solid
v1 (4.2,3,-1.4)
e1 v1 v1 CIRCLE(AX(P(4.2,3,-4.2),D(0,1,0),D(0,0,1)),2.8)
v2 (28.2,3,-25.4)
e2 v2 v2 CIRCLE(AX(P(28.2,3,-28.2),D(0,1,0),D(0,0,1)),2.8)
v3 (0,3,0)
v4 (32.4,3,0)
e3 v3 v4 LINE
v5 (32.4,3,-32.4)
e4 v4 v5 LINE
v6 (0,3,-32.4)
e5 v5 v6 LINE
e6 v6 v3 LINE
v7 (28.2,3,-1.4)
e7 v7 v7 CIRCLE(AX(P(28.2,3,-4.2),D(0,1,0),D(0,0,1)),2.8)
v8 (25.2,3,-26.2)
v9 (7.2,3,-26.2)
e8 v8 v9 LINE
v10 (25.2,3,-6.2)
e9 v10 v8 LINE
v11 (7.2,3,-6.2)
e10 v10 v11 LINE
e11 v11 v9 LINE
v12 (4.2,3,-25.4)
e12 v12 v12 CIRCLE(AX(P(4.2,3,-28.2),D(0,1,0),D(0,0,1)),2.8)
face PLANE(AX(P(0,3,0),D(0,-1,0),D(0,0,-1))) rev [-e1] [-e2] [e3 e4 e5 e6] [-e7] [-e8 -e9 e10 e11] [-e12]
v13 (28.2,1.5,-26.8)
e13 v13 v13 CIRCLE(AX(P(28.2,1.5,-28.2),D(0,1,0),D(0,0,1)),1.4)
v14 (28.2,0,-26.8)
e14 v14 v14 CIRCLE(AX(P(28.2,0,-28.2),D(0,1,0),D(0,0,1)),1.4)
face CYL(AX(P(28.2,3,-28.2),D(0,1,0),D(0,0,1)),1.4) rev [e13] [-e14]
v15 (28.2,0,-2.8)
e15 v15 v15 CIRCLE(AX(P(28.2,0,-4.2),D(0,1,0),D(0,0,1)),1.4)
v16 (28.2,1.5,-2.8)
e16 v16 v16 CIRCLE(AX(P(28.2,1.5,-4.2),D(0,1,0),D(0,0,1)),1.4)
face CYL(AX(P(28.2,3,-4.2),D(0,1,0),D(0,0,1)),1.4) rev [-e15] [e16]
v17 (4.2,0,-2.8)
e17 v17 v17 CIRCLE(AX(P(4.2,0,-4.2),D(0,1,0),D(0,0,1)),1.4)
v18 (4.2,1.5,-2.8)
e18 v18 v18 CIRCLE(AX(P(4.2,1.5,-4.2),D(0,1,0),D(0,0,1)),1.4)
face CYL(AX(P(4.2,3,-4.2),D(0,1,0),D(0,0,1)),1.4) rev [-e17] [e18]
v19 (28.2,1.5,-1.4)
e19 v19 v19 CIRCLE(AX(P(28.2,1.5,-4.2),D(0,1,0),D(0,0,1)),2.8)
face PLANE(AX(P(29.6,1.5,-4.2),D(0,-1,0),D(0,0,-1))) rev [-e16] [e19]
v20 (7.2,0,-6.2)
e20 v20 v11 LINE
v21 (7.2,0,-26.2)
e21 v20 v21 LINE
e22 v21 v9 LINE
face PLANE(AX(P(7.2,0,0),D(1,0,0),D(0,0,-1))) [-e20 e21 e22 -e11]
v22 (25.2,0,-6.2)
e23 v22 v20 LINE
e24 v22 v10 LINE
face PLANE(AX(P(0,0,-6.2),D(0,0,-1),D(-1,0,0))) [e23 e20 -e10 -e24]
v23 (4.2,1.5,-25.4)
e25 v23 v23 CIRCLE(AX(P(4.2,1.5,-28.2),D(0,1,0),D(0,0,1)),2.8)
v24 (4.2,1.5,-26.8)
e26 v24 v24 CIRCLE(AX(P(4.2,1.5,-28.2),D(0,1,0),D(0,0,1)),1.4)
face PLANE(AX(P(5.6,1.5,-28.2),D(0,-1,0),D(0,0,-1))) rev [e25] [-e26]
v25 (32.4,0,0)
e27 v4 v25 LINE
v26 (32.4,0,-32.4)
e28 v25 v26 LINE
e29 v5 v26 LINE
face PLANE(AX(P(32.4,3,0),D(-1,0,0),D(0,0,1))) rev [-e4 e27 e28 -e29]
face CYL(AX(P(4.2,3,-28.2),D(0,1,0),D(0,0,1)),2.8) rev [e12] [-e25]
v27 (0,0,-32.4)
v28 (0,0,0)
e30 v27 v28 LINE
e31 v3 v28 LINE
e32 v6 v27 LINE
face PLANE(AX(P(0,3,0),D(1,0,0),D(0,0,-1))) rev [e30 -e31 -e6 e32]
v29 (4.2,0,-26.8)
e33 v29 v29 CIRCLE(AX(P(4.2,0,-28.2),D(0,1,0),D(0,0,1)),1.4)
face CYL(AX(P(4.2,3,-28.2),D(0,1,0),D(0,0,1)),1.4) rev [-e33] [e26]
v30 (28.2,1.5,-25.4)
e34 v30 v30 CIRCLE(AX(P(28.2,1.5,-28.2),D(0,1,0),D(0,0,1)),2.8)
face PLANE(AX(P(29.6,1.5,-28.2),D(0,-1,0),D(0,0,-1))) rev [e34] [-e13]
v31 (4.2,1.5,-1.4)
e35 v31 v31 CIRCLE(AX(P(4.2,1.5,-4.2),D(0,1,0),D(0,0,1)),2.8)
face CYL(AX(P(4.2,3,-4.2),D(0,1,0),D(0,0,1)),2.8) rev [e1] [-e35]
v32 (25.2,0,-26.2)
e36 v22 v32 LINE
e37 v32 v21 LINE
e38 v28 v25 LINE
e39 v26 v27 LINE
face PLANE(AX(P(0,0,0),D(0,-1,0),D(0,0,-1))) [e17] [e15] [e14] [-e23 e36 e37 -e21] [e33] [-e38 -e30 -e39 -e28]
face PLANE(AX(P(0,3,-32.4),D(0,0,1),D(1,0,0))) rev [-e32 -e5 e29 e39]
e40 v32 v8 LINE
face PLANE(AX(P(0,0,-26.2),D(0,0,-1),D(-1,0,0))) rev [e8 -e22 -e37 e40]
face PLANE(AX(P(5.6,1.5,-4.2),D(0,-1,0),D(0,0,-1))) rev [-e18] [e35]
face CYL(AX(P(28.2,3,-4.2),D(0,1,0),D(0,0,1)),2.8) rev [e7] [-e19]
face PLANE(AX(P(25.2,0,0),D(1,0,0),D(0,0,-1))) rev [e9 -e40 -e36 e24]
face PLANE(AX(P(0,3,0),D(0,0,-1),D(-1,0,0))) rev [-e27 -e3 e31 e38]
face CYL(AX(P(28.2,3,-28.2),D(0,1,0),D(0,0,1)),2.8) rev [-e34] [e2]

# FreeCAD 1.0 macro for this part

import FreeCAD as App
import Part
import Sketcher
Q = App.Units.Quantity

doc = App.newDocument("Part")
body = doc.addObject("PartDesign::Body", "Body")

sketch1 = body.newObject("Sketcher::SketchObject", "Sketch")
sketch1.AttachmentSupport = (doc.getObject("XZ_Plane"), [""])
sketch1.MapMode = "FlatFace"
sketch1.addGeometry([
    Part.LineSegment(App.Vector(0, -32, 0), App.Vector(0, 0, 0)),
    Part.LineSegment(App.Vector(0, 0, 0), App.Vector(32, 0, 0)),
    Part.LineSegment(App.Vector(32, 0, 0), App.Vector(32, -32, 0)),
    Part.LineSegment(App.Vector(32, -32, 0), App.Vector(0, -32, 0)),
], False)
sketch1.addConstraint([
    Sketcher.Constraint("Coincident", 0, 2, 1, 1),
    Sketcher.Constraint("Coincident", 1, 2, 2, 1),
    Sketcher.Constraint("Coincident", 2, 2, 3, 1),
    Sketcher.Constraint("Coincident", 3, 2, 0, 1),
    Sketcher.Constraint("Vertical", 0),
    Sketcher.Constraint("Horizontal", 1),
    Sketcher.Constraint("Vertical", 2),
    Sketcher.Constraint("Horizontal", 3),
    Sketcher.Constraint("Coincident", 0, 2, -1, 1),
    Sketcher.Constraint("Equal", 3, 0),
    Sketcher.Constraint("DistanceX", 1, 1, 1, 2, Q("32.4 mm")),
])
pad1 = body.newObject("PartDesign::Pad", "Pad")
pad1.Profile = sketch1
pad1.Length = 3
pad1.Reversed = True

sketch2 = body.newObject("Sketcher::SketchObject", "Sketch001")
sketch2.AttachmentSupport = (doc.getObject("XZ_Plane"), [""])
sketch2.MapMode = "FlatFace"
sketch2.AttachmentOffset = App.Placement(App.Vector(0, 0, -3), App.Rotation())
sketch2.addGeometry([
    Part.Circle(App.Vector(4.2, -28.2, 0), App.Vector(0, 0, 1), 1.4),
    Part.Circle(App.Vector(28.2, -28.2, 0), App.Vector(0, 0, 1), 1.4),
    Part.Circle(App.Vector(28.2, -4.2, 0), App.Vector(0, 0, 1), 1.4),
    Part.Circle(App.Vector(4.2, -4.2, 0), App.Vector(0, 0, 1), 1.4),
], False)
sketch2.addConstraint([
    Sketcher.Constraint("Equal", 0, 1),
    Sketcher.Constraint("Equal", 1, 2),
    Sketcher.Constraint("Equal", 2, 3),
    Sketcher.Constraint("Horizontal", 0, 3, 1, 3),
    Sketcher.Constraint("Horizontal", 2, 3, 3, 3),
    Sketcher.Constraint("Vertical", 1, 3, 2, 3),
    Sketcher.Constraint("Vertical", 0, 3, 3, 3),
    Sketcher.Constraint("Diameter", 0, Q("2.8 mm")),
    Sketcher.Constraint("DistanceX", 0, 3, 1, 3, Q("24 mm")),
    Sketcher.Constraint("DistanceY", 1, 3, 2, 3, Q("24 mm")),
    Sketcher.Constraint("DistanceX", -1, 1, 0, 3, Q("4.2 mm")),
    Sketcher.Constraint("DistanceY", 0, 3, -1, 1, Q("28.2 mm")),
])
doc.recompute()
hole = body.newObject("PartDesign::Hole", "Hole")
hole.Profile = sketch2
hole.ThreadType = "None"
hole.Diameter = 2.8
hole.DepthType = "ThroughAll"
hole.HoleCutType = "Counterbore"
hole.HoleCutDiameter = 5.6
hole.HoleCutDepth = 1.5
hole.Reversed = True

sketch3 = body.newObject("Sketcher::SketchObject", "Sketch002")
sketch3.AttachmentSupport = (doc.getObject("XZ_Plane"), [""])
sketch3.MapMode = "FlatFace"
sketch3.AttachmentOffset = App.Placement(App.Vector(0, 0, -3), App.Rotation())
sketch3.addGeometry([
    Part.LineSegment(App.Vector(7, -26, 0), App.Vector(7, -6, 0)),
    Part.LineSegment(App.Vector(7, -6, 0), App.Vector(25, -6, 0)),
    Part.LineSegment(App.Vector(25, -6, 0), App.Vector(25, -26, 0)),
    Part.LineSegment(App.Vector(25, -26, 0), App.Vector(7, -26, 0)),
], False)
sketch3.addConstraint([
    Sketcher.Constraint("Coincident", 0, 2, 1, 1),
    Sketcher.Constraint("Coincident", 1, 2, 2, 1),
    Sketcher.Constraint("Coincident", 2, 2, 3, 1),
    Sketcher.Constraint("Coincident", 3, 2, 0, 1),
    Sketcher.Constraint("Vertical", 0),
    Sketcher.Constraint("Horizontal", 1),
    Sketcher.Constraint("Vertical", 2),
    Sketcher.Constraint("Horizontal", 3),
    Sketcher.Constraint("DistanceX", 1, 1, 1, 2, Q("18 mm")),
    Sketcher.Constraint("DistanceY", 0, 1, 0, 2, Q("20 mm")),
    Sketcher.Constraint("DistanceX", -1, 1, 0, 2, Q("7.2 mm")),
    Sketcher.Constraint("DistanceY", 0, 2, -1, 1, Q("6.2 mm")),
])
pocket1 = body.newObject("PartDesign::Pocket", "Pocket")
pocket1.Profile = sketch3
pocket1.Type = "ThroughAll"
pocket1.Reversed = True

doc.recompute()
